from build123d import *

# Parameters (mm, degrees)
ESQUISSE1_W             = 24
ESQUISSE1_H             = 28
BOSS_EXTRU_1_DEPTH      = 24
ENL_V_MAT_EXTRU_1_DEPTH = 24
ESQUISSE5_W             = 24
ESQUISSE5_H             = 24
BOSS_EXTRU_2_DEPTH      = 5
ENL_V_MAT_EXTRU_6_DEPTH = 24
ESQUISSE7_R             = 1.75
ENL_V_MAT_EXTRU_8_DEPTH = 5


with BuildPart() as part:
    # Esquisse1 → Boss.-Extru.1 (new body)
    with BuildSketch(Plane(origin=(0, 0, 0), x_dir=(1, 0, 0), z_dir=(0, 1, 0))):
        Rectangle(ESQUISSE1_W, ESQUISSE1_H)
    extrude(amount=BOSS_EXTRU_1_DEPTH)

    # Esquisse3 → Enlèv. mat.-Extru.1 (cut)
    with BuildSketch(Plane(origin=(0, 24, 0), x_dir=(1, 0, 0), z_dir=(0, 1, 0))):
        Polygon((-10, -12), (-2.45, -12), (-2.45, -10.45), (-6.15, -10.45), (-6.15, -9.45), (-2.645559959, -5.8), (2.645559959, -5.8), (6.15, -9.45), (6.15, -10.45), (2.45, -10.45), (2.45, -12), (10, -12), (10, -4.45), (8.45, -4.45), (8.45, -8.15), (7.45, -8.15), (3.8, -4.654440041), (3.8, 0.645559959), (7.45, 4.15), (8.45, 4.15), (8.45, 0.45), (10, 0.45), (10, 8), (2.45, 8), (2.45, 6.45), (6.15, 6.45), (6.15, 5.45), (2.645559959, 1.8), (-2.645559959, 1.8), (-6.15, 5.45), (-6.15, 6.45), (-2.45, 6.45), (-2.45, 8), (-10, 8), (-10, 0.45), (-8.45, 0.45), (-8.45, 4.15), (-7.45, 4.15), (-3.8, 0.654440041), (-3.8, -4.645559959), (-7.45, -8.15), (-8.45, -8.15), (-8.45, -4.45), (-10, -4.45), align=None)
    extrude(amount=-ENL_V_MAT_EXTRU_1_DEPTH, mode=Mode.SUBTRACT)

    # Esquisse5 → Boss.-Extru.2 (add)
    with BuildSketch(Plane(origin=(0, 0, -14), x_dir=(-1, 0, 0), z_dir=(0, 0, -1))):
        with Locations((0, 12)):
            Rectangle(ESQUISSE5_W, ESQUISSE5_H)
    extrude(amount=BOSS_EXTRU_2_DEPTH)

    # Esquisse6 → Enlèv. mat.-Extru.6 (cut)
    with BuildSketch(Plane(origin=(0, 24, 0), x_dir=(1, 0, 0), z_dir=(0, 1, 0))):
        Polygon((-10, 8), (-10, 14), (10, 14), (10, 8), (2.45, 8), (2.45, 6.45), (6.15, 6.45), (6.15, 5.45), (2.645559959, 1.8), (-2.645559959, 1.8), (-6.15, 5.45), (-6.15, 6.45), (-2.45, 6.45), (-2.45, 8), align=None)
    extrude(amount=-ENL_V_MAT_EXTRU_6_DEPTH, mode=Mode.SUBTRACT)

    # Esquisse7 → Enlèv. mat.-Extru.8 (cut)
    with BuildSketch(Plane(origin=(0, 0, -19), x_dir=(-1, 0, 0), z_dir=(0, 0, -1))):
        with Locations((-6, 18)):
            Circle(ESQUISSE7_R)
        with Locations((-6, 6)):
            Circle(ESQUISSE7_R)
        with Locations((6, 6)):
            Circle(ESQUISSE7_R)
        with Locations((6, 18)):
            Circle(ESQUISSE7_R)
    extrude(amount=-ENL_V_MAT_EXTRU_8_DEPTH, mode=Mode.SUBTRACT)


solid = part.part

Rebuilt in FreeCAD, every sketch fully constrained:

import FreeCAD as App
import Part
import Sketcher


def add_polygon(sketch, points):
    """Adds a closed chain of lines whose ends are joined by coincident constraints."""
    first, n = sketch.GeometryCount, len(points)
    for a, b in zip(points, points[1:] + points[:1]):
        sketch.addGeometry(Part.LineSegment(App.Vector(*a, 0), App.Vector(*b, 0)), False)
    for i in range(n):
        sketch.addConstraint(Sketcher.Constraint("Coincident", first + i, 2, first + (i + 1) % n, 1))

doc = App.newDocument("Part")
body = doc.addObject("PartDesign::Body", "Body")

sketch1 = body.newObject("Sketcher::SketchObject", "Sketch")
sketch1.AttachmentSupport = (doc.getObject("XZ_Plane"), [""])
sketch1.MapMode = "FlatFace"
add_polygon(sketch1, [(-12, -14), (-12, 14), (12, 14), (12, -14)])
sketch1.addConstraint(Sketcher.Constraint("Vertical", 0))
sketch1.addConstraint(Sketcher.Constraint("Horizontal", 1))
sketch1.addConstraint(Sketcher.Constraint("Vertical", 2))
sketch1.addConstraint(Sketcher.Constraint("Horizontal", 3))
sketch1.addConstraint(Sketcher.Constraint("Symmetric", 0, 2, 2, 2, -1, 1))
sketch1.addConstraint(Sketcher.Constraint("DistanceX", 1, 1, 1, 2, 24.0))
sketch1.addConstraint(Sketcher.Constraint("DistanceY", 0, 1, 0, 2, 28.0))
pad1 = body.newObject("PartDesign::Pad", "Pad")
pad1.Profile = sketch1
pad1.Length = 24
pad1.Reversed = True

sketch2 = body.newObject("Sketcher::SketchObject", "Sketch001")
sketch2.AttachmentSupport = (doc.getObject("XZ_Plane"), [""])
sketch2.MapMode = "FlatFace"
sketch2.AttachmentOffset = App.Placement(App.Vector(0, 0, -24), App.Rotation())
add_polygon(sketch2, [(-10, 12), (-2.5, 12), (-2.5, 10.4), (-6.2, 10.4), (-6.2, 9.4), (-2.6, 5.8), (2.6, 5.8), (6.2, 9.4), (6.2, 10.4), (2.5, 10.4), (2.5, 12), (10, 12), (10, 4.5), (8.4, 4.5), (8.4, 8.2), (7.5, 8.2), (3.8, 4.7), (3.8, -0.6), (7.5, -4.2), (8.4, -4.2), (8.4, -0.5), (10, -0.5), (10, -8), (2.5, -8), (2.5, -6.5), (6.2, -6.5), (6.2, -5.5), (2.6, -1.8), (-2.6, -1.8), (-6.2, -5.5), (-6.2, -6.5), (-2.5, -6.5), (-2.5, -8), (-10, -8), (-10, -0.5), (-8.4, -0.5), (-8.4, -4.2), (-7.5, -4.2), (-3.8, -0.7), (-3.8, 4.6), (-7.5, 8.2), (-8.4, 8.2), (-8.4, 4.5), (-10, 4.5)])
sketch2.addConstraint(Sketcher.Constraint("Horizontal", 0))
sketch2.addConstraint(Sketcher.Constraint("Vertical", 1))
sketch2.addConstraint(Sketcher.Constraint("Horizontal", 2))
sketch2.addConstraint(Sketcher.Constraint("Vertical", 3))
sketch2.addConstraint(Sketcher.Constraint("Horizontal", 5))
sketch2.addConstraint(Sketcher.Constraint("Vertical", 7))
sketch2.addConstraint(Sketcher.Constraint("Horizontal", 8))
sketch2.addConstraint(Sketcher.Constraint("Vertical", 9))
sketch2.addConstraint(Sketcher.Constraint("Horizontal", 10))
sketch2.addConstraint(Sketcher.Constraint("Vertical", 11))
sketch2.addConstraint(Sketcher.Constraint("Horizontal", 12))
sketch2.addConstraint(Sketcher.Constraint("Vertical", 13))
sketch2.addConstraint(Sketcher.Constraint("Horizontal", 14))
sketch2.addConstraint(Sketcher.Constraint("Vertical", 16))
sketch2.addConstraint(Sketcher.Constraint("Horizontal", 18))
sketch2.addConstraint(Sketcher.Constraint("Vertical", 19))
sketch2.addConstraint(Sketcher.Constraint("Horizontal", 20))
sketch2.addConstraint(Sketcher.Constraint("Vertical", 21))
sketch2.addConstraint(Sketcher.Constraint("Horizontal", 22))
sketch2.addConstraint(Sketcher.Constraint("Vertical", 23))
sketch2.addConstraint(Sketcher.Constraint("Horizontal", 24))
sketch2.addConstraint(Sketcher.Constraint("Vertical", 25))
sketch2.addConstraint(Sketcher.Constraint("Horizontal", 27))
sketch2.addConstraint(Sketcher.Constraint("Vertical", 29))
sketch2.addConstraint(Sketcher.Constraint("Horizontal", 30))
sketch2.addConstraint(Sketcher.Constraint("Vertical", 31))
sketch2.addConstraint(Sketcher.Constraint("Horizontal", 32))
sketch2.addConstraint(Sketcher.Constraint("Vertical", 33))
sketch2.addConstraint(Sketcher.Constraint("Horizontal", 34))
sketch2.addConstraint(Sketcher.Constraint("Vertical", 35))
sketch2.addConstraint(Sketcher.Constraint("Horizontal", 36))
sketch2.addConstraint(Sketcher.Constraint("Vertical", 38))
sketch2.addConstraint(Sketcher.Constraint("Horizontal", 40))
sketch2.addConstraint(Sketcher.Constraint("Vertical", 41))
sketch2.addConstraint(Sketcher.Constraint("Horizontal", 42))
sketch2.addConstraint(Sketcher.Constraint("Vertical", 43))
sketch2.addConstraint(Sketcher.Constraint("Symmetric", 3, 2, 6, 2, -2))
sketch2.addConstraint(Sketcher.Constraint("Symmetric", 1, 2, 8, 2, -2))
sketch2.addConstraint(Sketcher.Constraint("Symmetric", 25, 2, 28, 2, -2))
sketch2.addConstraint(Sketcher.Constraint("Symmetric", 23, 2, 30, 2, -2))
sketch2.addConstraint(Sketcher.Constraint("Symmetric", 21, 2, 32, 2, -2))
sketch2.addConstraint(Sketcher.Constraint("Symmetric", 19, 2, 34, 2, -2))
sketch2.addConstraint(Sketcher.Constraint("Symmetric", 17, 2, 36, 2, -2))
sketch2.addConstraint(Sketcher.Constraint("Symmetric", 14, 2, 39, 2, -2))
sketch2.addConstraint(Sketcher.Constraint("Symmetric", 12, 2, 41, 2, -2))
sketch2.addConstraint(Sketcher.Constraint("Symmetric", 10, 2, 43, 2, -2))
sketch2.addConstraint(Sketcher.Constraint("Perpendicular", 6, 17))
sketch2.addConstraint(Sketcher.Constraint("Parallel", 4, 26))
sketch2.addConstraint(Sketcher.Constraint("Perpendicular", 17, 28))
sketch2.addConstraint(Sketcher.Constraint("Parallel", 15, 37))
sketch2.addConstraint(Sketcher.Constraint("Perpendicular", 28, 39))
sketch2.addConstraint(Sketcher.Constraint("Vertical", 14, 2, 17, 2))
sketch2.addConstraint(Sketcher.Constraint("Vertical", 13, 2, 18, 2))
sketch2.addConstraint(Sketcher.Constraint("Vertical", 11, 2, 20, 2))
sketch2.addConstraint(Sketcher.Constraint("Vertical", 9, 2, 22, 2))
sketch2.addConstraint(Sketcher.Constraint("Vertical", 7, 2, 24, 2))
sketch2.addConstraint(Sketcher.Constraint("Vertical", 5, 2, 26, 2))
sketch2.addConstraint(Sketcher.Constraint("Vertical", 4, 2, 27, 2))
sketch2.addConstraint(Sketcher.Constraint("Equal", 42, 1))
sketch2.addConstraint(Sketcher.Constraint("Equal", 40, 3))
sketch2.addConstraint(Sketcher.Constraint("Equal", 32, 11))
sketch2.addConstraint(Sketcher.Constraint("Equal", 30, 13))
sketch2.addConstraint(Sketcher.Constraint("Equal", 13, 19))
sketch2.addConstraint(Sketcher.Constraint("Equal", 11, 21))
sketch2.addConstraint(Sketcher.Constraint("Equal", 9, 23))
sketch2.addConstraint(Sketcher.Constraint("Equal", 7, 25))
sketch2.addConstraint(Sketcher.Constraint("Equal", 16, 38))
sketch2.addConstraint(Sketcher.Constraint("Equal", 6, 17))
sketch2.addConstraint(Sketcher.Constraint("DistanceX", 14, 2, 14, 1, 1.0))
sketch2.addConstraint(Sketcher.Constraint("DistanceX", 2, 2, 2, 1, 3.7))
sketch2.addConstraint(Sketcher.Constraint("DistanceY", 16, 2, 16, 1, 5.3))
sketch2.addConstraint(Sketcher.Constraint("DistanceY", -1, 1, 0, 2, 12.0))
sketch2.addConstraint(Sketcher.Constraint("DistanceX", -1, 1, 10, 2, 10.0))
sketch2.addConstraint(Sketcher.Constraint("DistanceY", 21, 2, -1, 1, 8.0))
sketch2.addConstraint(Sketcher.Constraint("DistanceY", 11, 2, 6, 2, 5.0))
sketch2.addConstraint(Sketcher.Constraint("DistanceX", 0, 1, 0, 2, 7.55))
sketch2.addConstraint(Sketcher.Constraint("DistanceY", -1, 1, 4, 2, 5.8))
sketch2.addConstraint(Sketcher.Constraint("Distance", 4, 5.06))
pocket1 = body.newObject("PartDesign::Pocket", "Pocket")
pocket1.Profile = sketch2
pocket1.Length = 24
pocket1.Reversed = True

sketch3 = body.newObject("Sketcher::SketchObject", "Sketch002")
sketch3.AttachmentSupport = (doc.getObject("XY_Plane"), [""])
sketch3.MapMode = "FlatFace"
sketch3.AttachmentOffset = App.Placement(App.Vector(0, 0, -14), App.Rotation())
add_polygon(sketch3, [(12, 24), (12, 0), (-12, 0), (-12, 24)])
sketch3.addConstraint(Sketcher.Constraint("Vertical", 0))
sketch3.addConstraint(Sketcher.Constraint("Horizontal", 1))
sketch3.addConstraint(Sketcher.Constraint("Vertical", 2))
sketch3.addConstraint(Sketcher.Constraint("Horizontal", 3))
sketch3.addConstraint(Sketcher.Constraint("Symmetric", 0, 2, 1, 2, -1, 1))
sketch3.addConstraint(Sketcher.Constraint("Equal", 3, 0))
sketch3.addConstraint(Sketcher.Constraint("DistanceX", 1, 2, 1, 1, 24.0))
pad2 = body.newObject("PartDesign::Pad", "Pad001")
pad2.Profile = sketch3
pad2.Length = 5
pad2.Reversed = True

sketch4 = body.newObject("Sketcher::SketchObject", "Sketch003")
sketch4.AttachmentSupport = (doc.getObject("XZ_Plane"), [""])
sketch4.MapMode = "FlatFace"
sketch4.AttachmentOffset = App.Placement(App.Vector(0, 0, -24), App.Rotation())
add_polygon(sketch4, [(-10, -14), (-10, -8), (-2.5, -8), (-2.5, -6.5), (-6.2, -6.5), (-6.2, -5.5), (-2.6, -1.8), (2.6, -1.8), (6.2, -5.5), (6.2, -6.5), (2.5, -6.5), (2.5, -8), (10, -8), (10, -14)])
sketch4.addConstraint(Sketcher.Constraint("Vertical", 0))
sketch4.addConstraint(Sketcher.Constraint("Horizontal", 1))
sketch4.addConstraint(Sketcher.Constraint("Vertical", 2))
sketch4.addConstraint(Sketcher.Constraint("Horizontal", 3))
sketch4.addConstraint(Sketcher.Constraint("Vertical", 4))
sketch4.addConstraint(Sketcher.Constraint("Horizontal", 6))
sketch4.addConstraint(Sketcher.Constraint("Vertical", 8))
sketch4.addConstraint(Sketcher.Constraint("Horizontal", 9))
sketch4.addConstraint(Sketcher.Constraint("Vertical", 10))
sketch4.addConstraint(Sketcher.Constraint("Horizontal", 11))
sketch4.addConstraint(Sketcher.Constraint("Vertical", 12))
sketch4.addConstraint(Sketcher.Constraint("Horizontal", 13))
sketch4.addConstraint(Sketcher.Constraint("Symmetric", 4, 2, 7, 2, -2))
sketch4.addConstraint(Sketcher.Constraint("Symmetric", 2, 2, 9, 2, -2))
sketch4.addConstraint(Sketcher.Constraint("Symmetric", 0, 2, 11, 2, -2))
sketch4.addConstraint(Sketcher.Constraint("Equal", 5, 7))
sketch4.addConstraint(Sketcher.Constraint("DistanceX", 13, 2, 13, 1, 20.0))
sketch4.addConstraint(Sketcher.Constraint("DistanceY", 0, 1, 0, 2, 6.0))
sketch4.addConstraint(Sketcher.Constraint("DistanceY", 4, 1, 4, 2, 1.0))
sketch4.addConstraint(Sketcher.Constraint("DistanceX", 3, 2, 3, 1, 3.7))
sketch4.addConstraint(Sketcher.Constraint("DistanceY", 0, 2, -1, 1, 8.0))
sketch4.addConstraint(Sketcher.Constraint("DistanceX", 1, 1, 1, 2, 7.55))
sketch4.addConstraint(Sketcher.Constraint("DistanceY", 2, 1, 2, 2, 1.55))
sketch4.addConstraint(Sketcher.Constraint("DistanceY", 5, 2, -1, 1, 1.8))
sketch4.addConstraint(Sketcher.Constraint("Distance", 5, 5.06))
pocket2 = body.newObject("PartDesign::Pocket", "Pocket001")
pocket2.Profile = sketch4
pocket2.Length = 24
pocket2.Reversed = True

sketch5 = body.newObject("Sketcher::SketchObject", "Sketch004")
sketch5.AttachmentSupport = (doc.getObject("XY_Plane"), [""])
sketch5.MapMode = "FlatFace"
sketch5.AttachmentOffset = App.Placement(App.Vector(0, 0, -19), App.Rotation())
sketch5.addGeometry(Part.Circle(App.Vector(6, 18, 0), App.Vector(0, 0, 1), 1.8), False)
sketch5.addGeometry(Part.Circle(App.Vector(6, 6, 0), App.Vector(0, 0, 1), 1.8), False)
sketch5.addGeometry(Part.Circle(App.Vector(-6, 6, 0), App.Vector(0, 0, 1), 1.8), False)
sketch5.addGeometry(Part.Circle(App.Vector(-6, 18, 0), App.Vector(0, 0, 1), 1.8), False)
sketch5.addConstraint(Sketcher.Constraint("Equal", 0, 1))
sketch5.addConstraint(Sketcher.Constraint("Equal", 1, 2))
sketch5.addConstraint(Sketcher.Constraint("Equal", 2, 3))
sketch5.addConstraint(Sketcher.Constraint("Symmetric", 1, 3, 2, 3, -2))
sketch5.addConstraint(Sketcher.Constraint("Symmetric", 0, 3, 3, 3, -2))
sketch5.addConstraint(Sketcher.Constraint("Vertical", 0, 3, 1, 3))
sketch5.addConstraint(Sketcher.Constraint("Diameter", 0, 3.5))
sketch5.addConstraint(Sketcher.Constraint("DistanceX", -1, 1, 0, 3, 6.0))
sketch5.addConstraint(Sketcher.Constraint("DistanceY", -1, 1, 0, 3, 18.0))
sketch5.addConstraint(Sketcher.Constraint("DistanceY", -1, 1, 1, 3, 6.0))
pocket3 = body.newObject("PartDesign::Pocket", "Pocket002")
pocket3.Profile = sketch5
pocket3.Length = 5
pocket3.Reversed = True

doc.recompute()
